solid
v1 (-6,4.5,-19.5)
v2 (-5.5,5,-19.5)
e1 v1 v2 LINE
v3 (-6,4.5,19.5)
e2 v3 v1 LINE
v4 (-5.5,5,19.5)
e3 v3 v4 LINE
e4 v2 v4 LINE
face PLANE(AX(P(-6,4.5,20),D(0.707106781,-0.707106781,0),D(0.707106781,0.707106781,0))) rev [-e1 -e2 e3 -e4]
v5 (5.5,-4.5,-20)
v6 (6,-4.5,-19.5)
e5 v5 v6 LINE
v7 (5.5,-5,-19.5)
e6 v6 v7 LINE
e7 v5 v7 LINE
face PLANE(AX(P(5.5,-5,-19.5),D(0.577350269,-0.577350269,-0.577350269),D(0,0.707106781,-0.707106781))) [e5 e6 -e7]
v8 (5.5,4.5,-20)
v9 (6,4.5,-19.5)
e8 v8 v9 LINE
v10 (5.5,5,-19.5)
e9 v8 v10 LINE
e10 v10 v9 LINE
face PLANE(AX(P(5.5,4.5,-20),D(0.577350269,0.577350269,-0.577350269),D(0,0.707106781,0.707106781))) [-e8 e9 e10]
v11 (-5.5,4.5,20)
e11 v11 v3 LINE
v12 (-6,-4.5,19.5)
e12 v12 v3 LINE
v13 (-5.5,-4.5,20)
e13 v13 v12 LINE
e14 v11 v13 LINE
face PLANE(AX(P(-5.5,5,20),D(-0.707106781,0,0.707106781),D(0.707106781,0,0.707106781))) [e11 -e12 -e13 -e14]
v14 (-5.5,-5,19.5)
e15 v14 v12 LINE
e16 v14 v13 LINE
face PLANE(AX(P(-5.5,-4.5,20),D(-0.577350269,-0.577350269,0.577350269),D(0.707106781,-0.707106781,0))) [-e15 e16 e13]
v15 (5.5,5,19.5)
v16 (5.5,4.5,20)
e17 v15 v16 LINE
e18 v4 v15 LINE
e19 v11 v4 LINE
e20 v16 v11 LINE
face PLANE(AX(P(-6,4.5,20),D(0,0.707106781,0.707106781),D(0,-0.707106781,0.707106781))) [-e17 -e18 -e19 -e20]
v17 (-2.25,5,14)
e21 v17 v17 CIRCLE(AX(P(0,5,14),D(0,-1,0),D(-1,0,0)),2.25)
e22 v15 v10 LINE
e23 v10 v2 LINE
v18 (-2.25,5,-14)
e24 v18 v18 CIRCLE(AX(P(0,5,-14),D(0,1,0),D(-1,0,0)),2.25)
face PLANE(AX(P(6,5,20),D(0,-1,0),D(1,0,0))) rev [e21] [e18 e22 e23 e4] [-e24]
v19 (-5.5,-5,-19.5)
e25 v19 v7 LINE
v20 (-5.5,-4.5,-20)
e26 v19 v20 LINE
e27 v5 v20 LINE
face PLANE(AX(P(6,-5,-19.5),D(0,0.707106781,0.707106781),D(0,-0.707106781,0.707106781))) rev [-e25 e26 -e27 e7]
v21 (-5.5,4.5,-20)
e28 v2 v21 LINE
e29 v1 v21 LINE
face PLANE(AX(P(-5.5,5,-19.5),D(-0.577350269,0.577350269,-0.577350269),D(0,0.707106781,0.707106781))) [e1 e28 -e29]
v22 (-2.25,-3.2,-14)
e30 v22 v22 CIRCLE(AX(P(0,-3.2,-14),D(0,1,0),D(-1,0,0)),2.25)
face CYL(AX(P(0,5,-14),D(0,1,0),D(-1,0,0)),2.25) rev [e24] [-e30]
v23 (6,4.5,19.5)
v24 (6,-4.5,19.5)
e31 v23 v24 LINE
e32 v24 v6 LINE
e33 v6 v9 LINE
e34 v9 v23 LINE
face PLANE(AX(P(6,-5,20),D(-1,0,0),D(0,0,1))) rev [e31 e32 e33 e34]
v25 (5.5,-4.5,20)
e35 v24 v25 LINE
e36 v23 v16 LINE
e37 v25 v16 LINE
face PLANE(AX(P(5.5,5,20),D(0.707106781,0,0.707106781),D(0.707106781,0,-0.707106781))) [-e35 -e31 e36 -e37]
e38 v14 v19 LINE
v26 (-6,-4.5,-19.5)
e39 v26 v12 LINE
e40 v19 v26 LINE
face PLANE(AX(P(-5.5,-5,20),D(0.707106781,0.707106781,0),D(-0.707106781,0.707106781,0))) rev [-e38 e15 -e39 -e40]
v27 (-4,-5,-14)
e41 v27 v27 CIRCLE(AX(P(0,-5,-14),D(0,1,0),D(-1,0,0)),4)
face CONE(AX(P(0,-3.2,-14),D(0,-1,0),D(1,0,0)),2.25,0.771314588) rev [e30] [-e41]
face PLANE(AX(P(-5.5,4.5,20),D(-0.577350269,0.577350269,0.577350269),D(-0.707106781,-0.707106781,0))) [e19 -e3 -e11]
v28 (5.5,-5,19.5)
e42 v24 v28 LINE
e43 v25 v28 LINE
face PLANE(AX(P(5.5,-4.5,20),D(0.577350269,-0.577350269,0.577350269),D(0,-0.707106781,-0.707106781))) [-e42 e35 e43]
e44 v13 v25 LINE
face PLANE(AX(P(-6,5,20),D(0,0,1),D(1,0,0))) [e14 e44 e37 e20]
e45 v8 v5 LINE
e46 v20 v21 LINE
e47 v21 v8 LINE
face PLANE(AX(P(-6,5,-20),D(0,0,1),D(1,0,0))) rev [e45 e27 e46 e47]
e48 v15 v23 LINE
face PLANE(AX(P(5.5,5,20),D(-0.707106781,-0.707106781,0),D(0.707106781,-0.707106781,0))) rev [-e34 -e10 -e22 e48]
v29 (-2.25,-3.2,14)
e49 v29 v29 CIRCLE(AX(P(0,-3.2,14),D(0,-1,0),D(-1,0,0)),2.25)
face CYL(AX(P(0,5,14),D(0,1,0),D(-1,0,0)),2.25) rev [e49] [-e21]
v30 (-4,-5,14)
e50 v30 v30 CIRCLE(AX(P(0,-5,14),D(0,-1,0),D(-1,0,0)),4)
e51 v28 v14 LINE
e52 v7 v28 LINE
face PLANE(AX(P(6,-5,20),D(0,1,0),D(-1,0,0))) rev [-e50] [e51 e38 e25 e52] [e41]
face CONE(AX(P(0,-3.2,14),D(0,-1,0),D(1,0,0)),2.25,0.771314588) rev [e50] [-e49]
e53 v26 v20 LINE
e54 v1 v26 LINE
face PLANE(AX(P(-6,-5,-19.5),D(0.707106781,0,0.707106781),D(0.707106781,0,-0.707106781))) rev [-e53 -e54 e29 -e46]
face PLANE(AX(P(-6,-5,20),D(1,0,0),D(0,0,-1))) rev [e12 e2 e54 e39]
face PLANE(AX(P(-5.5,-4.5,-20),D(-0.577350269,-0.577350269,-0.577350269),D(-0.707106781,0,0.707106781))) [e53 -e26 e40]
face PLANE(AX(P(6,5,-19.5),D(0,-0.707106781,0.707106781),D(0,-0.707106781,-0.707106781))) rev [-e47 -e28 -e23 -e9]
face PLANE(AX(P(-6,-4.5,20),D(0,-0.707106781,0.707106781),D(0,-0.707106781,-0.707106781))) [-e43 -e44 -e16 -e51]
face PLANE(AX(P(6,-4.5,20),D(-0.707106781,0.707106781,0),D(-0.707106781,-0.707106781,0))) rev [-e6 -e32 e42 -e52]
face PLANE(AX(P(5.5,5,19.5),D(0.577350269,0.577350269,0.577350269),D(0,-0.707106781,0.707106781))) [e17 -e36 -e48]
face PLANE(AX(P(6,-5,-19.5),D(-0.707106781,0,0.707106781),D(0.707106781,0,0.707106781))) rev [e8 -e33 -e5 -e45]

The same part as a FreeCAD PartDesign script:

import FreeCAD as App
import Part
import Sketcher


def edges_at(feature, points):
    """Names of the edges that pass closest to the given points."""
    edges = feature.Shape.Edges
    near = lambda p: min(range(len(edges)), key=lambda i: edges[i].distToShape(Part.Vertex(*p))[0])
    return sorted({f"Edge{near(p) + 1}" for p in points})

doc = App.newDocument("Part")
body = doc.addObject("PartDesign::Body", "Body")

# Sketch on XY plane
sketch1 = body.newObject("Sketcher::SketchObject", "Sketch")
sketch1.AttachmentSupport = (doc.getObject("XY_Plane"), [""])
sketch1.MapMode = "FlatFace"
sketch1.addGeometry(Part.LineSegment(App.Vector(-6, 5, 0), App.Vector(-6, -5, 0)), False)
sketch1.addGeometry(Part.LineSegment(App.Vector(-6, -5, 0), App.Vector(6, -5, 0)), False)
sketch1.addGeometry(Part.LineSegment(App.Vector(6, -5, 0), App.Vector(6, 5, 0)), False)
sketch1.addGeometry(Part.LineSegment(App.Vector(6, 5, 0), App.Vector(-6, 5, 0)), False)
sketch1.addConstraint(Sketcher.Constraint("Coincident", 0, 2, 1, 1))
sketch1.addConstraint(Sketcher.Constraint("Coincident", 1, 2, 2, 1))
sketch1.addConstraint(Sketcher.Constraint("Coincident", 2, 2, 3, 1))
sketch1.addConstraint(Sketcher.Constraint("Coincident", 3, 2, 0, 1))
sketch1.addConstraint(Sketcher.Constraint("Vertical", 0))
sketch1.addConstraint(Sketcher.Constraint("Horizontal", 1))
sketch1.addConstraint(Sketcher.Constraint("Vertical", 2))
sketch1.addConstraint(Sketcher.Constraint("Horizontal", 3))
sketch1.addConstraint(Sketcher.Constraint("Symmetric", 0, 2, 2, 2, -1, 1))
sketch1.addConstraint(Sketcher.Constraint("DistanceX", 1, 1, 1, 2, 12.0))
sketch1.addConstraint(Sketcher.Constraint("DistanceY", 0, 2, 0, 1, 10.0))
pad1 = body.newObject("PartDesign::Pad", "Pad")
pad1.Profile = sketch1
pad1.Length = 40
pad1.Midplane = True

# Sketch on XY plane
sketch2 = body.newObject("Sketcher::SketchObject", "Sketch001")
sketch2.AttachmentSupport = (doc.getObject("XY_Plane"), [""])
sketch2.MapMode = "FlatFace"
sketch2.AttachmentOffset = App.Placement(App.Vector(0, 0, -14), App.Rotation())
sketch2.addGeometry(Part.LineSegment(App.Vector(0, 5, 0), App.Vector(-2.2, 5, 0)), False)
sketch2.addGeometry(Part.LineSegment(App.Vector(-2.2, 5, 0), App.Vector(-2.2, -3.2, 0)), False)
sketch2.addGeometry(Part.LineSegment(App.Vector(-2.2, -3.2, 0), App.Vector(-4, -5, 0)), False)
sketch2.addGeometry(Part.LineSegment(App.Vector(-4, -5, 0), App.Vector(0, -5, 0)), False)
sketch2.addGeometry(Part.LineSegment(App.Vector(0, -5, 0), App.Vector(0, 5, 0)), False)
sketch2.addConstraint(Sketcher.Constraint("Coincident", 0, 2, 1, 1))
sketch2.addConstraint(Sketcher.Constraint("Coincident", 1, 2, 2, 1))
sketch2.addConstraint(Sketcher.Constraint("Coincident", 2, 2, 3, 1))
sketch2.addConstraint(Sketcher.Constraint("Coincident", 3, 2, 4, 1))
sketch2.addConstraint(Sketcher.Constraint("Coincident", 4, 2, 0, 1))
sketch2.addConstraint(Sketcher.Constraint("Horizontal", 0))
sketch2.addConstraint(Sketcher.Constraint("Vertical", 1))
sketch2.addConstraint(Sketcher.Constraint("Horizontal", 3))
sketch2.addConstraint(Sketcher.Constraint("Vertical", 4))
sketch2.addConstraint(Sketcher.Constraint("Symmetric", 3, 2, 4, 2, -1, 1))
sketch2.addConstraint(Sketcher.Constraint("DistanceX", 3, 1, 3, 2, 4.0))
sketch2.addConstraint(Sketcher.Constraint("DistanceY", 4, 1, 4, 2, 10.0))
sketch2.addConstraint(Sketcher.Constraint("DistanceY", 1, 2, 1, 1, 8.2))
sketch2.addConstraint(Sketcher.Constraint("DistanceX", 0, 2, 0, 1, 2.25))
groove = body.newObject("PartDesign::Groove", "Groove")
groove.Profile = sketch2
groove.ReferenceAxis = (sketch2, ["V_Axis"])
groove.Angle = 360
doc.recompute()

mirrored = body.newObject("PartDesign::Mirrored", "Mirrored")
mirrored.Originals = [groove]
mirrored.MirrorPlane = (doc.getObject("XY_Plane"), [""])
body.Tip = mirrored
doc.recompute()

chamfer = body.newObject("PartDesign::Chamfer", "Chamfer")
chamfer.Base = (mirrored, edges_at(mirrored, [
    (6, 0, 20),
    (0, 5, 20),
    (-6, 0, 20),
    (0, 5, -20),
    (6, 0, -20),
    (0, -5, -20),
    (-6, 0, -20),
    (0, -5, 20),
    (-6, 5, 0),
    (6, 5, 0),
    (6, -5, 0),
    (-6, -5, 0),
]))
chamfer.Size = 0.5

doc.recompute()
